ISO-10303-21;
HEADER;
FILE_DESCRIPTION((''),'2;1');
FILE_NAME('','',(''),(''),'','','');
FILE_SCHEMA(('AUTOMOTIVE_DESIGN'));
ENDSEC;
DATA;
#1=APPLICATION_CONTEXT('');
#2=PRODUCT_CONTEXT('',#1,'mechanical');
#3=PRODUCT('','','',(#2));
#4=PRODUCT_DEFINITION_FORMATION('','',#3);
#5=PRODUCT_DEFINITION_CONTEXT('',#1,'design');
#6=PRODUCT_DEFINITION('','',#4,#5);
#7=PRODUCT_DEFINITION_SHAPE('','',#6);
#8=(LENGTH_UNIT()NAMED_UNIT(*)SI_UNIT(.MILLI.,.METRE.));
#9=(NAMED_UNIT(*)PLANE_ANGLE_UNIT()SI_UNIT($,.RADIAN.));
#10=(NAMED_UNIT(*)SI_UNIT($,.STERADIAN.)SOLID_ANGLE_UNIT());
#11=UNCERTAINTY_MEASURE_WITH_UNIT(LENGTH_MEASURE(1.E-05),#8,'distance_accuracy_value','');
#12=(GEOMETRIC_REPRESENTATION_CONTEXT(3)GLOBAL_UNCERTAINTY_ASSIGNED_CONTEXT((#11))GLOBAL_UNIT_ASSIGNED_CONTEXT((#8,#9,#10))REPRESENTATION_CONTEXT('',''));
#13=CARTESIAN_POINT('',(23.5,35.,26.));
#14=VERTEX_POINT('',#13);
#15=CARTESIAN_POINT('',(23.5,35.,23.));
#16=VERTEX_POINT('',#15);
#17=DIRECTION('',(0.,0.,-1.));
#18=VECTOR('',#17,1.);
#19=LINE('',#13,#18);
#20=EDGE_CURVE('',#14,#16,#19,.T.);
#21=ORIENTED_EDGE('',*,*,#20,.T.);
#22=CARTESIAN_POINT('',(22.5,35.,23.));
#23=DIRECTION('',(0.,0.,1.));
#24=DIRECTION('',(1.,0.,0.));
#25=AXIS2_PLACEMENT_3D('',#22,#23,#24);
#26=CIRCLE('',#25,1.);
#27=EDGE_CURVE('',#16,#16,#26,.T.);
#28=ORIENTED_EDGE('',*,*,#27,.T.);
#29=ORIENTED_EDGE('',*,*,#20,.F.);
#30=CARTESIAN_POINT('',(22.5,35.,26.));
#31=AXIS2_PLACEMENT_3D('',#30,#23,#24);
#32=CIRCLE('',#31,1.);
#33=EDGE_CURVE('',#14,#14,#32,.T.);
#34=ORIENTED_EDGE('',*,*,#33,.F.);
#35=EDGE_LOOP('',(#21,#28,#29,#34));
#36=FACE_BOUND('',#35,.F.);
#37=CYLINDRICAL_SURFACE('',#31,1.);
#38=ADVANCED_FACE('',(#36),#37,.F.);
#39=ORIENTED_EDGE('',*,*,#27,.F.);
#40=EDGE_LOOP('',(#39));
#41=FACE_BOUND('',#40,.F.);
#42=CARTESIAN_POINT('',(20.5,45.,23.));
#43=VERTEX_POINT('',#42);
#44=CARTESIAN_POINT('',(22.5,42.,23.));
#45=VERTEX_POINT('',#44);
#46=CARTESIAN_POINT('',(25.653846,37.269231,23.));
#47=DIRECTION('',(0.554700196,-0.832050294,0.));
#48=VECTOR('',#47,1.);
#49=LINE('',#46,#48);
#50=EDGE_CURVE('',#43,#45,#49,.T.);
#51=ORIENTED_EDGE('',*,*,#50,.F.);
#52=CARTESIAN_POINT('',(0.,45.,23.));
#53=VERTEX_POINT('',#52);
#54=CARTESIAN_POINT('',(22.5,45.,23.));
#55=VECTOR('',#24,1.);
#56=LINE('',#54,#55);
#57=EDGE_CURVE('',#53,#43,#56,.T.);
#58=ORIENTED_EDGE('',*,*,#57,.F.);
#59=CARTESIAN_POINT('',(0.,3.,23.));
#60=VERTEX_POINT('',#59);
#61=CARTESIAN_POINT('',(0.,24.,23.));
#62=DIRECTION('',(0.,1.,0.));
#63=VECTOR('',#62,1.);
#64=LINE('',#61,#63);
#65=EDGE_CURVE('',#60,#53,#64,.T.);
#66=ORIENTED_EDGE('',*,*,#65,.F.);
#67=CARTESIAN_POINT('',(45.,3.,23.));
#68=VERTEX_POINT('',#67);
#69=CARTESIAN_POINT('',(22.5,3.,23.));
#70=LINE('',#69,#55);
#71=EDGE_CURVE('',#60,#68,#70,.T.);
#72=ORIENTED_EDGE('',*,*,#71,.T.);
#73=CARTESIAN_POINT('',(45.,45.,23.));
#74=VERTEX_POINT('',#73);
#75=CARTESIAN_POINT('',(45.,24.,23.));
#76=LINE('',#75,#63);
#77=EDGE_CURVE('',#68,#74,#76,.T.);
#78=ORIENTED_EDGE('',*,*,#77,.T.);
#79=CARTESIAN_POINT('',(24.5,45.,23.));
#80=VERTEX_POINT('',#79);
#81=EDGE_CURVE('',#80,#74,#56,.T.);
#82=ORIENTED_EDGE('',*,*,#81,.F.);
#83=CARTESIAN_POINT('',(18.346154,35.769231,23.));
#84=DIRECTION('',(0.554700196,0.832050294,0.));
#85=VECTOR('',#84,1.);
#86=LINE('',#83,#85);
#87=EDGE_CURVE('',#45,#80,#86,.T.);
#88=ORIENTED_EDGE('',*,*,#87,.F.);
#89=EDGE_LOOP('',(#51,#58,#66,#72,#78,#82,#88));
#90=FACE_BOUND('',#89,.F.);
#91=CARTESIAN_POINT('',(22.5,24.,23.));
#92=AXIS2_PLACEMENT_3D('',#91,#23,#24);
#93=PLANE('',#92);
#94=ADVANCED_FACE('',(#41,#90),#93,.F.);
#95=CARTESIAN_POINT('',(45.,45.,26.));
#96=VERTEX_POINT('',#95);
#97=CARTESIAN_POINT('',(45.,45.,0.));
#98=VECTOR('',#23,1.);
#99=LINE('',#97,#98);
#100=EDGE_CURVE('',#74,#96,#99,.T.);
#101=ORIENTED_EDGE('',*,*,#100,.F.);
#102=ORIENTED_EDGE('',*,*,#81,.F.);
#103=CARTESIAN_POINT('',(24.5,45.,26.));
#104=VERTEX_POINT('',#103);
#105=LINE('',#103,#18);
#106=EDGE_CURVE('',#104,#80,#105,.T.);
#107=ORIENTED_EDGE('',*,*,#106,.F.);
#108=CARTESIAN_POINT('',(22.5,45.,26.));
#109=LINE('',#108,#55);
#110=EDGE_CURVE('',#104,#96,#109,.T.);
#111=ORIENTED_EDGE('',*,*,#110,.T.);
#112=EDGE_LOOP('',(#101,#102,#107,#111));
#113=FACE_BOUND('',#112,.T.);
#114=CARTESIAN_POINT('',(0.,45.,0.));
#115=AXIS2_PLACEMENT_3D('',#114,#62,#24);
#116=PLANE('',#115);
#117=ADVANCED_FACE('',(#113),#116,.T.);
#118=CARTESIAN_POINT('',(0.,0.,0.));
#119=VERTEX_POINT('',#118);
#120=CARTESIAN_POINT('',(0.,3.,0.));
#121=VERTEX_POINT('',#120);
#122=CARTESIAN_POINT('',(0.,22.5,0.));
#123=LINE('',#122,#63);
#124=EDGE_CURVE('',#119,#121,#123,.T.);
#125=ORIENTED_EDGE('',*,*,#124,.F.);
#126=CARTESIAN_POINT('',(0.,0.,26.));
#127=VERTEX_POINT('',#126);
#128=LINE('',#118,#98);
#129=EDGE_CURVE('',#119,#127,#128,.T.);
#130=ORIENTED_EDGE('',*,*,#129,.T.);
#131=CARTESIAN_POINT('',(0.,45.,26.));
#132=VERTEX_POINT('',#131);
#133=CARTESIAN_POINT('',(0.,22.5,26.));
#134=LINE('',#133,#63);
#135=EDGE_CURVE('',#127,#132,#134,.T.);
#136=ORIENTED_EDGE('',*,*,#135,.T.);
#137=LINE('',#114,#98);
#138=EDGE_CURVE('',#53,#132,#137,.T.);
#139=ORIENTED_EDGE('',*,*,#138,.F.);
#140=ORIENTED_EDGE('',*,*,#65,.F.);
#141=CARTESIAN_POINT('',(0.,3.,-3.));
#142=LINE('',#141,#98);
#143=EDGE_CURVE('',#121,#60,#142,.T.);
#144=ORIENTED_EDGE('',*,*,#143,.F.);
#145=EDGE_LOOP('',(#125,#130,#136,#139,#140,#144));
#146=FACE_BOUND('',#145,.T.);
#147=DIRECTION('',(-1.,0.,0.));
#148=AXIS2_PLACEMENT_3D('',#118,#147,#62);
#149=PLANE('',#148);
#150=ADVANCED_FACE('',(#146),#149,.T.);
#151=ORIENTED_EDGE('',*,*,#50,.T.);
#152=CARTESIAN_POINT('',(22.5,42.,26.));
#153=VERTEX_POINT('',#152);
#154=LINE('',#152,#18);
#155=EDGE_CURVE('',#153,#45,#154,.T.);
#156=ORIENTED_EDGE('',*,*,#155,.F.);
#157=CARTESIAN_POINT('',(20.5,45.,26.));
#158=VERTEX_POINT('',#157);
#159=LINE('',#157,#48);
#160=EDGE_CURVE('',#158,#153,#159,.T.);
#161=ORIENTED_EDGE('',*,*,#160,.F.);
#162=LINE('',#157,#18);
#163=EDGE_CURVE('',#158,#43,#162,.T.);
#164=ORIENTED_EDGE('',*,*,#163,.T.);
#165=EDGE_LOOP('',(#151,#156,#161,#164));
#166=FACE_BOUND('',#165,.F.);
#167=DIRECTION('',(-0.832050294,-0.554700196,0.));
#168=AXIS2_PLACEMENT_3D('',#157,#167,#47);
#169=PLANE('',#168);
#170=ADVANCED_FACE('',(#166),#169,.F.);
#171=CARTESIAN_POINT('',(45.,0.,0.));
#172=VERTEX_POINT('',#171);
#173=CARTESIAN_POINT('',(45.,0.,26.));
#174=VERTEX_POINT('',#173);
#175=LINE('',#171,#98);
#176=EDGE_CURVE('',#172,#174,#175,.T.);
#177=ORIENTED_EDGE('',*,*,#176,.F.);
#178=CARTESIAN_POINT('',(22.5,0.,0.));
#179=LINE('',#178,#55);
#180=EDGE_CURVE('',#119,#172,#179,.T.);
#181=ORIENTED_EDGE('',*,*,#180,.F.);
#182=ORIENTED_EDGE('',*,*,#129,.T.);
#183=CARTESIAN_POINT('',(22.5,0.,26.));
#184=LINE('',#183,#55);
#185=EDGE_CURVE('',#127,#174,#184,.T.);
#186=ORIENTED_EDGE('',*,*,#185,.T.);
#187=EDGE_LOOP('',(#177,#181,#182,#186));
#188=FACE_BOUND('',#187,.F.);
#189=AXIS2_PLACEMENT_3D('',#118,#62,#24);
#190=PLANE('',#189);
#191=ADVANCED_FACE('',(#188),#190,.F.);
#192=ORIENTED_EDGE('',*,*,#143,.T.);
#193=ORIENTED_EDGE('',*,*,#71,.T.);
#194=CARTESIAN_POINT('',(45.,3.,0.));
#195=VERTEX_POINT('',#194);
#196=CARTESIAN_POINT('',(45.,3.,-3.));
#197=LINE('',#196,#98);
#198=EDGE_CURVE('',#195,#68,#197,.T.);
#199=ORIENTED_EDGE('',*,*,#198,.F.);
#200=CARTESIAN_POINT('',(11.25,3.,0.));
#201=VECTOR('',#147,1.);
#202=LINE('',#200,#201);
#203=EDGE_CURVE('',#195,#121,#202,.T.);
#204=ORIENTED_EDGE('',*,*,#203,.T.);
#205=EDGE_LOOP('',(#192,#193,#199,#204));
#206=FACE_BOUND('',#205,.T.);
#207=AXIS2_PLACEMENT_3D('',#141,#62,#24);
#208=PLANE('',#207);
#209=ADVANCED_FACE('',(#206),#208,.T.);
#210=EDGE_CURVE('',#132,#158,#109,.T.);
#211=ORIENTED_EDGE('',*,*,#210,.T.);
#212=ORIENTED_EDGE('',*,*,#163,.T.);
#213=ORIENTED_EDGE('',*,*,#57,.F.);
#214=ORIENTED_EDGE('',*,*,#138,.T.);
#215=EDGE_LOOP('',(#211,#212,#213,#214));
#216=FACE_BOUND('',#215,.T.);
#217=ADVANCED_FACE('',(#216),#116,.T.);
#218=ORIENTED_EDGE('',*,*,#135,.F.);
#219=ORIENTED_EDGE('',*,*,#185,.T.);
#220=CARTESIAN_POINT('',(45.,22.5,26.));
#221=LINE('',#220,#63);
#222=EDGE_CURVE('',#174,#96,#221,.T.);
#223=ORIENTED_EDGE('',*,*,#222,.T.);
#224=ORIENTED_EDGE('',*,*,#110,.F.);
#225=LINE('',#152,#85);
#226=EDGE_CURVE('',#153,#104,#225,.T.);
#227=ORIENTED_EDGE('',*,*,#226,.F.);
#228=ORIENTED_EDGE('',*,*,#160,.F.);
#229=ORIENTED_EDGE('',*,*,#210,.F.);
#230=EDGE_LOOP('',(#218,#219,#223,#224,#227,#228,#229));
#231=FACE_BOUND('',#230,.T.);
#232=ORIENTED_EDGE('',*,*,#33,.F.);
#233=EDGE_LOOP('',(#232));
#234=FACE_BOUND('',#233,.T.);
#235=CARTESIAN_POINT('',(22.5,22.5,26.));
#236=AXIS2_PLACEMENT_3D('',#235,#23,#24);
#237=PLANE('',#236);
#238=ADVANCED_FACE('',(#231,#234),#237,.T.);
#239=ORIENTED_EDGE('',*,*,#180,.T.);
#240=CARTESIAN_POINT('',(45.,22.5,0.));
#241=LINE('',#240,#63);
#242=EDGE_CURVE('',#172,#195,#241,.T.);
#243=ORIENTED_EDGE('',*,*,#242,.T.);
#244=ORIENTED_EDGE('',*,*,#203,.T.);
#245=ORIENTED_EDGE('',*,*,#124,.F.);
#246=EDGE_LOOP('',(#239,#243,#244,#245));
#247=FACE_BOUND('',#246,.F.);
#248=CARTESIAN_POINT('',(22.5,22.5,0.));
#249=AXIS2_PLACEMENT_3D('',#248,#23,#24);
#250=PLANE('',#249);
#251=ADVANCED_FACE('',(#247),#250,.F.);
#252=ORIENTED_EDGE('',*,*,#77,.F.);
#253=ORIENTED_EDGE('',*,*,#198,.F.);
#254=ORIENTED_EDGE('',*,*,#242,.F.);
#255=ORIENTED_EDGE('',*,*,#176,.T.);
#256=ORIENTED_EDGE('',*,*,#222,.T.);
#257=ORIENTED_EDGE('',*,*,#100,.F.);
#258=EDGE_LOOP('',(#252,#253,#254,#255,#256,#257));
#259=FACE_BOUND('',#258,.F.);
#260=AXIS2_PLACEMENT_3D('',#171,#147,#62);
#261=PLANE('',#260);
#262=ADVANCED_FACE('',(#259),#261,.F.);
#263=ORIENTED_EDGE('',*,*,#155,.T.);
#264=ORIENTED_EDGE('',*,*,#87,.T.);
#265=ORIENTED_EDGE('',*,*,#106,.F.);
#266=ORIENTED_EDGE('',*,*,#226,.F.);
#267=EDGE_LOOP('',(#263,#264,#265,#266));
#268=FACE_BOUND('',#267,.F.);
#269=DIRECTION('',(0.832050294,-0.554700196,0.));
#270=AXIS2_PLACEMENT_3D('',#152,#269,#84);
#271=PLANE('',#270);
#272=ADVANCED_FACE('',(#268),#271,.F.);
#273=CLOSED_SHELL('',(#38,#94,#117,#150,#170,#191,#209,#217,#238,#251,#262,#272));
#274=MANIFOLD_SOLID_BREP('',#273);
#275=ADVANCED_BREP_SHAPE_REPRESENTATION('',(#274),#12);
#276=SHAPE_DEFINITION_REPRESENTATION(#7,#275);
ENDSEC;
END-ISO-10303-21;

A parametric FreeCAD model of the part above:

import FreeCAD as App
import Part
import Sketcher
Q = App.Units.Quantity

doc = App.newDocument("Part")
body = doc.addObject("PartDesign::Body", "Body")

# Sketch on XY plane
sketch1 = body.newObject("Sketcher::SketchObject", "Sketch")
sketch1.AttachmentSupport = (doc.getObject("XY_Plane"), [""])
sketch1.MapMode = "FlatFace"
sketch1.addGeometry([
    Part.LineSegment(App.Vector(0, 42, 0), App.Vector(0, 0, 0)),
    Part.LineSegment(App.Vector(0, 0, 0), App.Vector(45, 0, 0)),
    Part.LineSegment(App.Vector(45, 0, 0), App.Vector(45, 42, 0)),
    Part.LineSegment(App.Vector(45, 42, 0), App.Vector(0, 42, 0)),
], False)
sketch1.addConstraint([
    Sketcher.Constraint("Coincident", 0, 2, 1, 1),
    Sketcher.Constraint("Coincident", 1, 2, 2, 1),
    Sketcher.Constraint("Coincident", 2, 2, 3, 1),
    Sketcher.Constraint("Coincident", 3, 2, 0, 1),
    Sketcher.Constraint("Vertical", 0),
    Sketcher.Constraint("Horizontal", 1),
    Sketcher.Constraint("Vertical", 2),
    Sketcher.Constraint("Horizontal", 3),
    Sketcher.Constraint("Coincident", 0, 2, -1, 1),
    Sketcher.Constraint("DistanceX", 1, 1, 1, 2, Q("45 mm")),
    Sketcher.Constraint("DistanceY", 0, 2, 0, 1, Q("42 mm")),
])
pad1 = body.newObject("PartDesign::Pad", "Pad")
pad1.Profile = sketch1
pad1.Length = 26
body2 = doc.addObject("PartDesign::Body", "Body001")
doc.recompute()

body.Placement = App.Placement(App.Vector(0, 3, -3), App.Rotation(App.Vector(0, 0, 1), 0))
boolean = body2.newObject("PartDesign::Boolean", "Boolean")
boolean.Type = "Fuse"
boolean.addObjects([body])
body3 = doc.addObject("PartDesign::Body", "Body002")

# Sketch on XY plane
sketch2 = body3.newObject("Sketcher::SketchObject", "Sketch001")
sketch2.AttachmentSupport = (doc.getObject("XY_Plane002"), [""])
sketch2.MapMode = "FlatFace"
sketch2.addGeometry([
    Part.LineSegment(App.Vector(0, 45, 0), App.Vector(0, 0, 0)),
    Part.LineSegment(App.Vector(0, 0, 0), App.Vector(45, 0, 0)),
    Part.LineSegment(App.Vector(45, 0, 0), App.Vector(45, 45, 0)),
    Part.LineSegment(App.Vector(45, 45, 0), App.Vector(0, 45, 0)),
], False)
sketch2.addConstraint([
    Sketcher.Constraint("Coincident", 0, 2, 1, 1),
    Sketcher.Constraint("Coincident", 1, 2, 2, 1),
    Sketcher.Constraint("Coincident", 2, 2, 3, 1),
    Sketcher.Constraint("Coincident", 3, 2, 0, 1),
    Sketcher.Constraint("Vertical", 0),
    Sketcher.Constraint("Horizontal", 1),
    Sketcher.Constraint("Vertical", 2),
    Sketcher.Constraint("Horizontal", 3),
    Sketcher.Constraint("Coincident", 0, 2, -1, 1),
    Sketcher.Constraint("Equal", 3, 0),
    Sketcher.Constraint("DistanceX", 1, 1, 1, 2, Q("45 mm")),
])
pad2 = body3.newObject("PartDesign::Pad", "Pad001")
pad2.Profile = sketch2
pad2.Length = 26

# Sketch on XY plane
sketch3 = body3.newObject("Sketcher::SketchObject", "Sketch002")
sketch3.AttachmentSupport = (doc.getObject("XY_Plane002"), [""])
sketch3.MapMode = "FlatFace"
sketch3.AttachmentOffset = App.Placement(App.Vector(0, 0, 26), App.Rotation())
sketch3.addGeometry(Part.Circle(App.Vector(22.5, 35, 0), App.Vector(0, 0, 1), 1), False)
sketch3.addConstraint([
    Sketcher.Constraint("Diameter", 0, Q("2 mm")),
    Sketcher.Constraint("DistanceY", -1, 1, 0, 3, Q("35 mm")),
    Sketcher.Constraint("DistanceX", -1, 1, 0, 3, Q("22.5 mm")),
])
pocket1 = body3.newObject("PartDesign::Pocket", "Pocket")
pocket1.Profile = sketch3
pocket1.Type = "ThroughAll"
doc.recompute()

boolean2 = body3.newObject("PartDesign::Boolean", "Boolean001")
boolean2.Type = "Cut"
boolean2.addObjects([body2])

# Sketch on XY plane
sketch4 = body3.newObject("Sketcher::SketchObject", "Sketch003")
sketch4.AttachmentSupport = (doc.getObject("XY_Plane002"), [""])
sketch4.MapMode = "FlatFace"
sketch4.AttachmentOffset = App.Placement(App.Vector(0, 0, 26), App.Rotation())
sketch4.addGeometry([
    Part.LineSegment(App.Vector(20.5, 45, 0), App.Vector(22.5, 42, 0)),
    Part.LineSegment(App.Vector(22.5, 42, 0), App.Vector(24.5, 45, 0)),
    Part.LineSegment(App.Vector(24.5, 45, 0), App.Vector(20.5, 45, 0)),
], False)
sketch4.addConstraint([
    Sketcher.Constraint("Coincident", 0, 2, 1, 1),
    Sketcher.Constraint("Coincident", 1, 2, 2, 1),
    Sketcher.Constraint("Coincident", 2, 2, 0, 1),
    Sketcher.Constraint("Horizontal", 2),
    Sketcher.Constraint("Equal", 0, 1),
    Sketcher.Constraint("DistanceX", 2, 2, 2, 1, Q("4 mm")),
    Sketcher.Constraint("DistanceY", -1, 1, 0, 2, Q("42 mm")),
    Sketcher.Constraint("DistanceY", -1, 1, 1, 2, Q("45 mm")),
    Sketcher.Constraint("DistanceX", -1, 1, 0, 2, Q("22.5 mm")),
])
pocket2 = body3.newObject("PartDesign::Pocket", "Pocket001")
pocket2.Profile = sketch4
pocket2.Length = 5

doc.recompute()
